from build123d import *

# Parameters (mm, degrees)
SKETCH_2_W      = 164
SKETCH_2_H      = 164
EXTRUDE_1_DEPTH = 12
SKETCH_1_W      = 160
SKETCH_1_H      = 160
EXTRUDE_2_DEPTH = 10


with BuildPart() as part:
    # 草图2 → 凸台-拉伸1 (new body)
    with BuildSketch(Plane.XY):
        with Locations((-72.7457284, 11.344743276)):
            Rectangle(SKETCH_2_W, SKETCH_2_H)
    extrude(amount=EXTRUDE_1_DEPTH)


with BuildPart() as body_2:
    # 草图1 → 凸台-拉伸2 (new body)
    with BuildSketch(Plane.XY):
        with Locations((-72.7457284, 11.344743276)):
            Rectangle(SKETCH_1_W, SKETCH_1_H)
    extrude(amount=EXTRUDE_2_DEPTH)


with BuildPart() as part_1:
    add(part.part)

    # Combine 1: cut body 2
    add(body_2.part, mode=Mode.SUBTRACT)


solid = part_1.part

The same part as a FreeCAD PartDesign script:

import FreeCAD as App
import Part
import Sketcher

doc = App.newDocument("Part")
body = doc.addObject("PartDesign::Body", "Body")

# Sketch on XY plane
sketch1 = body.newObject("Sketcher::SketchObject", "Sketch")
sketch1.AttachmentSupport = (doc.getObject("XY_Plane"), [""])
sketch1.MapMode = "FlatFace"
sketch1.addGeometry(Part.LineSegment(App.Vector(-154.745728, 93.344743, 0), App.Vector(-154.745728, -70.655257, 0)), False)
sketch1.addGeometry(Part.LineSegment(App.Vector(-154.745728, -70.655257, 0), App.Vector(9.254272, -70.655257, 0)), False)
sketch1.addGeometry(Part.LineSegment(App.Vector(9.254272, -70.655257, 0), App.Vector(9.254272, 93.344743, 0)), False)
sketch1.addGeometry(Part.LineSegment(App.Vector(9.254272, 93.344743, 0), App.Vector(-154.745728, 93.344743, 0)), False)
sketch1.addConstraint(Sketcher.Constraint("Coincident", 0, 2, 1, 1))
sketch1.addConstraint(Sketcher.Constraint("Coincident", 1, 2, 2, 1))
sketch1.addConstraint(Sketcher.Constraint("Coincident", 2, 2, 3, 1))
sketch1.addConstraint(Sketcher.Constraint("Coincident", 3, 2, 0, 1))
sketch1.addConstraint(Sketcher.Constraint("Vertical", 0))
sketch1.addConstraint(Sketcher.Constraint("Horizontal", 1))
sketch1.addConstraint(Sketcher.Constraint("Vertical", 2))
sketch1.addConstraint(Sketcher.Constraint("Horizontal", 3))
sketch1.addConstraint(Sketcher.Constraint("Equal", 3, 0))
sketch1.addConstraint(Sketcher.Constraint("DistanceX", 1, 1, 1, 2, 164.0))
sketch1.addConstraint(Sketcher.Constraint("DistanceX", 0, 2, -1, 1, 154.745728))
sketch1.addConstraint(Sketcher.Constraint("DistanceY", 0, 2, -1, 1, 70.655257))
pad1 = body.newObject("PartDesign::Pad", "Pad")
pad1.Profile = sketch1
pad1.Length = 12
body2 = doc.addObject("PartDesign::Body", "Body001")

# Sketch on XY plane
sketch2 = body2.newObject("Sketcher::SketchObject", "Sketch001")
sketch2.AttachmentSupport = (doc.getObject("XY_Plane001"), [""])
sketch2.MapMode = "FlatFace"
sketch2.addGeometry(Part.LineSegment(App.Vector(-152.745728, 91.344743, 0), App.Vector(-152.745728, -68.655257, 0)), False)
sketch2.addGeometry(Part.LineSegment(App.Vector(-152.745728, -68.655257, 0), App.Vector(7.254272, -68.655257, 0)), False)
sketch2.addGeometry(Part.LineSegment(App.Vector(7.254272, -68.655257, 0), App.Vector(7.254272, 91.344743, 0)), False)
sketch2.addGeometry(Part.LineSegment(App.Vector(7.254272, 91.344743, 0), App.Vector(-152.745728, 91.344743, 0)), False)
sketch2.addConstraint(Sketcher.Constraint("Coincident", 0, 2, 1, 1))
sketch2.addConstraint(Sketcher.Constraint("Coincident", 1, 2, 2, 1))
sketch2.addConstraint(Sketcher.Constraint("Coincident", 2, 2, 3, 1))
sketch2.addConstraint(Sketcher.Constraint("Coincident", 3, 2, 0, 1))
sketch2.addConstraint(Sketcher.Constraint("Vertical", 0))
sketch2.addConstraint(Sketcher.Constraint("Horizontal", 1))
sketch2.addConstraint(Sketcher.Constraint("Vertical", 2))
sketch2.addConstraint(Sketcher.Constraint("Horizontal", 3))
sketch2.addConstraint(Sketcher.Constraint("Equal", 3, 0))
sketch2.addConstraint(Sketcher.Constraint("DistanceX", 1, 1, 1, 2, 160.0))
sketch2.addConstraint(Sketcher.Constraint("DistanceX", 0, 2, -1, 1, 152.745728))
sketch2.addConstraint(Sketcher.Constraint("DistanceY", 0, 2, -1, 1, 68.655257))
pad2 = body2.newObject("PartDesign::Pad", "Pad001")
pad2.Profile = sketch2
pad2.Length = 10
doc.recompute()

boolean = body.newObject("PartDesign::Boolean", "Boolean")
boolean.Type = "Cut"
boolean.addObjects([body2])

doc.recompute()
